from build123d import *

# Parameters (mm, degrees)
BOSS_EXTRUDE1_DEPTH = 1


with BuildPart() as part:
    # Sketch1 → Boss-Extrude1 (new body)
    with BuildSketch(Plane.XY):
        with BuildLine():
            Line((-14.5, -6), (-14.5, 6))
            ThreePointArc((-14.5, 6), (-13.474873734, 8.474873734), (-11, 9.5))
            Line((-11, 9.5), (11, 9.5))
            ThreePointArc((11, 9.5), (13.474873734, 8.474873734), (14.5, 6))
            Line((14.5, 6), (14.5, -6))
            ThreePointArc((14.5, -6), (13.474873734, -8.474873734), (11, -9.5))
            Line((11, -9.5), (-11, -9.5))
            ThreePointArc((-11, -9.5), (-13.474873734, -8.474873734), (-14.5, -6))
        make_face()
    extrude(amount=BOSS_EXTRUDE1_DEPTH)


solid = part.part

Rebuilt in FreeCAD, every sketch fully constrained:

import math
import FreeCAD as App
import Part
import Sketcher

doc = App.newDocument("Part")
params = doc.addObject("Spreadsheet::Sheet", "Params")
for row, (alias, value) in enumerate([
    ("sketch1_radius", "3.5 mm"),
    ("sketch1_width", "22 mm"),
    ("sketch1_height", "12 mm"),
    ("pad1_length", "1 mm"),
], start=1):
    params.set(f"A{row}", alias)
    params.set(f"B{row}", "=" + value)
    params.setAlias(f"B{row}", alias)

body = doc.addObject("PartDesign::Body", "Body")

sketch1 = body.newObject("Sketcher::SketchObject", "Sketch")
sketch1.AttachmentSupport = (doc.getObject("XY_Plane"), [""])
sketch1.MapMode = "FlatFace"
sketch1.addGeometry([
    Part.LineSegment(App.Vector(-14.5, 6, 0), App.Vector(-14.5, -6, 0)),
    Part.ArcOfCircle(Part.Circle(App.Vector(-11, -6, 0), App.Vector(0, 0, 1), 3.5), math.radians(-180), math.radians(-90)),
    Part.LineSegment(App.Vector(-11, -9.5, 0), App.Vector(11, -9.5, 0)),
    Part.ArcOfCircle(Part.Circle(App.Vector(11, -6, 0), App.Vector(0, 0, 1), 3.5), math.radians(-90), math.radians(0)),
    Part.LineSegment(App.Vector(14.5, -6, 0), App.Vector(14.5, 6, 0)),
    Part.ArcOfCircle(Part.Circle(App.Vector(11, 6, 0), App.Vector(0, 0, 1), 3.5), math.radians(0), math.radians(90)),
    Part.LineSegment(App.Vector(11, 9.5, 0), App.Vector(-11, 9.5, 0)),
    Part.ArcOfCircle(Part.Circle(App.Vector(-11, 6, 0), App.Vector(0, 0, 1), 3.5), math.radians(90), math.radians(180)),
], False)
sketch1.addConstraint([
    Sketcher.Constraint("Tangent", 0, 2, 1, 1),
    Sketcher.Constraint("Tangent", 1, 2, 2, 1),
    Sketcher.Constraint("Tangent", 2, 2, 3, 1),
    Sketcher.Constraint("Tangent", 3, 2, 4, 1),
    Sketcher.Constraint("Tangent", 4, 2, 5, 1),
    Sketcher.Constraint("Tangent", 5, 2, 6, 1),
    Sketcher.Constraint("Tangent", 6, 2, 7, 1),
    Sketcher.Constraint("Tangent", 7, 2, 0, 1),
    Sketcher.Constraint("Vertical", 0),
    Sketcher.Constraint("Horizontal", 2),
    Sketcher.Constraint("Vertical", 4),
    Sketcher.Constraint("Horizontal", 6),
    Sketcher.Constraint("Equal", 1, 3),
    Sketcher.Constraint("Equal", 3, 5),
    Sketcher.Constraint("Equal", 5, 7),
    Sketcher.Constraint("Symmetric", 1, 3, 5, 3, -1, 1),
    Sketcher.Constraint("Radius", 1, 3.5),
    Sketcher.Constraint("DistanceX", 2, 1, 2, 2, 22.0),
    Sketcher.Constraint("DistanceY", 0, 2, 0, 1, 12.0),
])
sketch1.setExpression("Constraints[16]", "Params.sketch1_radius")
sketch1.setExpression("Constraints[17]", "Params.sketch1_width")
sketch1.setExpression("Constraints[18]", "Params.sketch1_height")
pad1 = body.newObject("PartDesign::Pad", "Pad")
pad1.Profile = sketch1
pad1.setExpression("Length", "Params.pad1_length")

doc.recompute()
